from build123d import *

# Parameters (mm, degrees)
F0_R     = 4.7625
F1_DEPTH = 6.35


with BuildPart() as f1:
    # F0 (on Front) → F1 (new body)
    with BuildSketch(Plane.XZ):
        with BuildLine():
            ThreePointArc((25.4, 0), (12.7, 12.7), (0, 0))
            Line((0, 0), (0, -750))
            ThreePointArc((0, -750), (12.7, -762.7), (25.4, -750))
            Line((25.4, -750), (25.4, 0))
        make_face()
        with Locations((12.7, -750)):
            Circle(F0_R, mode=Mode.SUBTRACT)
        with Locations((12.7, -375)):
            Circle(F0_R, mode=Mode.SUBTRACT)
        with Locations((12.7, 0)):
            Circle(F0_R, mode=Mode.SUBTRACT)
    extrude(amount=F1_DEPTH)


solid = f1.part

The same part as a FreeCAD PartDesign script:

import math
import FreeCAD as App
import Part
import Sketcher
from FreeCAD import Vector
Q = App.Units.Quantity

doc = App.newDocument("Part")
body = doc.addObject("PartDesign::Body", "Body")

# Sketch on XZ plane
sketch1 = body.newObject("Sketcher::SketchObject", "Sketch")
sketch1.AttachmentSupport = (doc.getObject("XZ_Plane"), [""])
sketch1.MapMode = "FlatFace"
sketch1.addGeometry(Part.ArcOfCircle(Part.Circle(Vector(12.7, 0, 0), Vector(0, 0, 1), 12.7), math.radians(0), math.radians(180)), False)
sketch1.addGeometry(Part.LineSegment(Vector(0, 0, 0), Vector(0, -750, 0)), False)
sketch1.addGeometry(Part.ArcOfCircle(Part.Circle(Vector(12.7, -750, 0), Vector(0, 0, 1), 12.7), math.radians(180), math.radians(360)), False)
sketch1.addGeometry(Part.LineSegment(Vector(25.4, -750, 0), Vector(25.4, 0, 0)), False)
sketch1.addGeometry(Part.Circle(Vector(12.7, -750, 0), Vector(0, 0, 1), 4.8), False)
sketch1.addGeometry(Part.Circle(Vector(12.7, -375, 0), Vector(0, 0, 1), 4.8), False)
sketch1.addGeometry(Part.Circle(Vector(12.7, 0, 0), Vector(0, 0, 1), 4.8), False)
sketch1.addConstraint(Sketcher.Constraint("Tangent", 0, 2, 1, 1))
sketch1.addConstraint(Sketcher.Constraint("Tangent", 1, 2, 2, 1))
sketch1.addConstraint(Sketcher.Constraint("Tangent", 2, 2, 3, 1))
sketch1.addConstraint(Sketcher.Constraint("Tangent", 3, 2, 0, 1))
sketch1.addConstraint(Sketcher.Constraint("Vertical", 1))
sketch1.addConstraint(Sketcher.Constraint("Vertical", 3))
sketch1.addConstraint(Sketcher.Constraint("Coincident", 0, 2, -1, 1))
sketch1.addConstraint(Sketcher.Constraint("Coincident", 4, 3, 2, 3))
sketch1.addConstraint(Sketcher.Constraint("Coincident", 6, 3, 0, 3))
sketch1.addConstraint(Sketcher.Constraint("Equal", 4, 5))
sketch1.addConstraint(Sketcher.Constraint("Equal", 5, 6))
sketch1.addConstraint(Sketcher.Constraint("Vertical", 4, 3, 5, 3))
sketch1.addConstraint(Sketcher.Constraint("Radius", 0, Q("0.5 in")))
sketch1.addConstraint(Sketcher.Constraint("Diameter", 4, Q("0.375 in")))
sketch1.addConstraint(Sketcher.Constraint("DistanceY", 1, 2, 1, 1, Q("750 mm")))
sketch1.addConstraint(Sketcher.Constraint("DistanceY", 5, 3, -1, 1, Q("375 mm")))
pad1 = body.newObject("PartDesign::Pad", "Pad")
pad1.Profile = sketch1
pad1.Length = Q("0.25 in")

doc.recompute()
